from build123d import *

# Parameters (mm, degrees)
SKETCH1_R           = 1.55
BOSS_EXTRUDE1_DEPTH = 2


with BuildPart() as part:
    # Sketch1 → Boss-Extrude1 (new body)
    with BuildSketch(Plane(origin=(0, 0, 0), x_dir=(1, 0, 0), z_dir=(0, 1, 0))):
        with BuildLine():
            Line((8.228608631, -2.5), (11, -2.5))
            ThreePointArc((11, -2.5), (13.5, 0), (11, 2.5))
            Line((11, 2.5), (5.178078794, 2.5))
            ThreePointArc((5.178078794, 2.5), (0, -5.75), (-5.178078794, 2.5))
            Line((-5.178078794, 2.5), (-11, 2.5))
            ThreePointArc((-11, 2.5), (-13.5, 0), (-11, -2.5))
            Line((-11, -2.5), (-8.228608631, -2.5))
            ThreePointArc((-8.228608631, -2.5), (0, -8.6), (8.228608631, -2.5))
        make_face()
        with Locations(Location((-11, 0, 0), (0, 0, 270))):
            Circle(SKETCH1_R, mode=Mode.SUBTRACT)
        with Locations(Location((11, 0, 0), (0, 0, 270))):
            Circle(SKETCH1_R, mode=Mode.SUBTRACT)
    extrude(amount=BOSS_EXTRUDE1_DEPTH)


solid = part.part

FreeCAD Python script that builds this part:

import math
import FreeCAD as App
import Part
import Sketcher

V = App.Vector

doc = App.newDocument("Part")
params = doc.addObject("Spreadsheet::Sheet", "Params")
for row, (alias, value) in enumerate([
    ("sketch1_diameter", "3.1 mm"),
    ("sketch1_radius", "2.5 mm"),
    ("sketch1_radius2", "8.6 mm"),
    ("sketch1_radius3", "5.75 mm"),
    ("pad1_length", "2 mm"),
], start=1):
    params.set(f"A{row}", alias)
    params.set(f"B{row}", "=" + value)
    params.setAlias(f"B{row}", alias)

body = doc.addObject("PartDesign::Body", "Body")

sketch1 = body.newObject("Sketcher::SketchObject", "Sketch")
sketch1.AttachmentSupport = (doc.getObject("XZ_Plane"), [""])
sketch1.MapMode = "FlatFace"
sketch1.addGeometry([
    Part.LineSegment(V(8.2, 2.5, 0), V(11, 2.5, 0)),
    Part.ArcOfCircle(Part.Circle(V(11, 0, 0), V(0, 0, 1), 2.5), math.radians(-90), math.radians(90)),
    Part.LineSegment(V(11, -2.5, 0), V(5.2, -2.5, 0)),
    Part.ArcOfCircle(Part.Circle(V(0, 0, 0), V(0, 0, 1), 5.8), math.radians(-26), math.radians(206)),
    Part.LineSegment(V(-5.2, -2.5, 0), V(-11, -2.5, 0)),
    Part.ArcOfCircle(Part.Circle(V(-11, 0, 0), V(0, 0, 1), 2.5), math.radians(90), math.radians(270)),
    Part.LineSegment(V(-11, 2.5, 0), V(-8.2, 2.5, 0)),
    Part.ArcOfCircle(Part.Circle(V(0, 0, 0), V(0, 0, 1), 8.6), math.radians(17), math.radians(163)),
    Part.Circle(V(-11, 0, 0), V(0, 0, 1), 1.6),
    Part.Circle(V(11, 0, 0), V(0, 0, 1), 1.6),
], False)
sketch1.addConstraint([
    Sketcher.Constraint("Tangent", 0, 2, 1, 2),
    Sketcher.Constraint("Tangent", 1, 1, 2, 1),
    Sketcher.Constraint("Coincident", 2, 2, 3, 1),
    Sketcher.Constraint("Coincident", 3, 2, 4, 1),
    Sketcher.Constraint("Tangent", 4, 2, 5, 2),
    Sketcher.Constraint("Tangent", 5, 1, 6, 1),
    Sketcher.Constraint("Coincident", 6, 2, 7, 2),
    Sketcher.Constraint("Coincident", 7, 1, 0, 1),
    Sketcher.Constraint("Horizontal", 0),
    Sketcher.Constraint("Horizontal", 2),
    Sketcher.Constraint("Horizontal", 4),
    Sketcher.Constraint("Horizontal", 6),
    Sketcher.Constraint("Coincident", 3, 3, -1, 1),
    Sketcher.Constraint("Coincident", 7, 3, -1, 1),
    Sketcher.Constraint("Coincident", 8, 3, 5, 3),
    Sketcher.Constraint("Coincident", 9, 3, 1, 3),
    Sketcher.Constraint("Equal", 1, 5),
    Sketcher.Constraint("Equal", 8, 9),
    Sketcher.Constraint("Symmetric", 1, 3, 5, 3, -1, 1),
    Sketcher.Constraint("PointOnObject", 1, 3, -1),
    Sketcher.Constraint("Diameter", 8, 3.1),
    Sketcher.Constraint("Radius", 1, 2.5),
    Sketcher.Constraint("Radius", 7, 8.6),
    Sketcher.Constraint("Radius", 3, 5.75),
    Sketcher.Constraint("DistanceX", -1, 1, 1, 3, 11.0),
])
sketch1.setExpression("Constraints[20]", "Params.sketch1_diameter")
sketch1.setExpression("Constraints[21]", "Params.sketch1_radius")
sketch1.setExpression("Constraints[22]", "Params.sketch1_radius2")
sketch1.setExpression("Constraints[23]", "Params.sketch1_radius3")
pad1 = body.newObject("PartDesign::Pad", "Pad")
pad1.Profile = sketch1
pad1.setExpression("Length", "Params.pad1_length")
pad1.Reversed = True

doc.recompute()
